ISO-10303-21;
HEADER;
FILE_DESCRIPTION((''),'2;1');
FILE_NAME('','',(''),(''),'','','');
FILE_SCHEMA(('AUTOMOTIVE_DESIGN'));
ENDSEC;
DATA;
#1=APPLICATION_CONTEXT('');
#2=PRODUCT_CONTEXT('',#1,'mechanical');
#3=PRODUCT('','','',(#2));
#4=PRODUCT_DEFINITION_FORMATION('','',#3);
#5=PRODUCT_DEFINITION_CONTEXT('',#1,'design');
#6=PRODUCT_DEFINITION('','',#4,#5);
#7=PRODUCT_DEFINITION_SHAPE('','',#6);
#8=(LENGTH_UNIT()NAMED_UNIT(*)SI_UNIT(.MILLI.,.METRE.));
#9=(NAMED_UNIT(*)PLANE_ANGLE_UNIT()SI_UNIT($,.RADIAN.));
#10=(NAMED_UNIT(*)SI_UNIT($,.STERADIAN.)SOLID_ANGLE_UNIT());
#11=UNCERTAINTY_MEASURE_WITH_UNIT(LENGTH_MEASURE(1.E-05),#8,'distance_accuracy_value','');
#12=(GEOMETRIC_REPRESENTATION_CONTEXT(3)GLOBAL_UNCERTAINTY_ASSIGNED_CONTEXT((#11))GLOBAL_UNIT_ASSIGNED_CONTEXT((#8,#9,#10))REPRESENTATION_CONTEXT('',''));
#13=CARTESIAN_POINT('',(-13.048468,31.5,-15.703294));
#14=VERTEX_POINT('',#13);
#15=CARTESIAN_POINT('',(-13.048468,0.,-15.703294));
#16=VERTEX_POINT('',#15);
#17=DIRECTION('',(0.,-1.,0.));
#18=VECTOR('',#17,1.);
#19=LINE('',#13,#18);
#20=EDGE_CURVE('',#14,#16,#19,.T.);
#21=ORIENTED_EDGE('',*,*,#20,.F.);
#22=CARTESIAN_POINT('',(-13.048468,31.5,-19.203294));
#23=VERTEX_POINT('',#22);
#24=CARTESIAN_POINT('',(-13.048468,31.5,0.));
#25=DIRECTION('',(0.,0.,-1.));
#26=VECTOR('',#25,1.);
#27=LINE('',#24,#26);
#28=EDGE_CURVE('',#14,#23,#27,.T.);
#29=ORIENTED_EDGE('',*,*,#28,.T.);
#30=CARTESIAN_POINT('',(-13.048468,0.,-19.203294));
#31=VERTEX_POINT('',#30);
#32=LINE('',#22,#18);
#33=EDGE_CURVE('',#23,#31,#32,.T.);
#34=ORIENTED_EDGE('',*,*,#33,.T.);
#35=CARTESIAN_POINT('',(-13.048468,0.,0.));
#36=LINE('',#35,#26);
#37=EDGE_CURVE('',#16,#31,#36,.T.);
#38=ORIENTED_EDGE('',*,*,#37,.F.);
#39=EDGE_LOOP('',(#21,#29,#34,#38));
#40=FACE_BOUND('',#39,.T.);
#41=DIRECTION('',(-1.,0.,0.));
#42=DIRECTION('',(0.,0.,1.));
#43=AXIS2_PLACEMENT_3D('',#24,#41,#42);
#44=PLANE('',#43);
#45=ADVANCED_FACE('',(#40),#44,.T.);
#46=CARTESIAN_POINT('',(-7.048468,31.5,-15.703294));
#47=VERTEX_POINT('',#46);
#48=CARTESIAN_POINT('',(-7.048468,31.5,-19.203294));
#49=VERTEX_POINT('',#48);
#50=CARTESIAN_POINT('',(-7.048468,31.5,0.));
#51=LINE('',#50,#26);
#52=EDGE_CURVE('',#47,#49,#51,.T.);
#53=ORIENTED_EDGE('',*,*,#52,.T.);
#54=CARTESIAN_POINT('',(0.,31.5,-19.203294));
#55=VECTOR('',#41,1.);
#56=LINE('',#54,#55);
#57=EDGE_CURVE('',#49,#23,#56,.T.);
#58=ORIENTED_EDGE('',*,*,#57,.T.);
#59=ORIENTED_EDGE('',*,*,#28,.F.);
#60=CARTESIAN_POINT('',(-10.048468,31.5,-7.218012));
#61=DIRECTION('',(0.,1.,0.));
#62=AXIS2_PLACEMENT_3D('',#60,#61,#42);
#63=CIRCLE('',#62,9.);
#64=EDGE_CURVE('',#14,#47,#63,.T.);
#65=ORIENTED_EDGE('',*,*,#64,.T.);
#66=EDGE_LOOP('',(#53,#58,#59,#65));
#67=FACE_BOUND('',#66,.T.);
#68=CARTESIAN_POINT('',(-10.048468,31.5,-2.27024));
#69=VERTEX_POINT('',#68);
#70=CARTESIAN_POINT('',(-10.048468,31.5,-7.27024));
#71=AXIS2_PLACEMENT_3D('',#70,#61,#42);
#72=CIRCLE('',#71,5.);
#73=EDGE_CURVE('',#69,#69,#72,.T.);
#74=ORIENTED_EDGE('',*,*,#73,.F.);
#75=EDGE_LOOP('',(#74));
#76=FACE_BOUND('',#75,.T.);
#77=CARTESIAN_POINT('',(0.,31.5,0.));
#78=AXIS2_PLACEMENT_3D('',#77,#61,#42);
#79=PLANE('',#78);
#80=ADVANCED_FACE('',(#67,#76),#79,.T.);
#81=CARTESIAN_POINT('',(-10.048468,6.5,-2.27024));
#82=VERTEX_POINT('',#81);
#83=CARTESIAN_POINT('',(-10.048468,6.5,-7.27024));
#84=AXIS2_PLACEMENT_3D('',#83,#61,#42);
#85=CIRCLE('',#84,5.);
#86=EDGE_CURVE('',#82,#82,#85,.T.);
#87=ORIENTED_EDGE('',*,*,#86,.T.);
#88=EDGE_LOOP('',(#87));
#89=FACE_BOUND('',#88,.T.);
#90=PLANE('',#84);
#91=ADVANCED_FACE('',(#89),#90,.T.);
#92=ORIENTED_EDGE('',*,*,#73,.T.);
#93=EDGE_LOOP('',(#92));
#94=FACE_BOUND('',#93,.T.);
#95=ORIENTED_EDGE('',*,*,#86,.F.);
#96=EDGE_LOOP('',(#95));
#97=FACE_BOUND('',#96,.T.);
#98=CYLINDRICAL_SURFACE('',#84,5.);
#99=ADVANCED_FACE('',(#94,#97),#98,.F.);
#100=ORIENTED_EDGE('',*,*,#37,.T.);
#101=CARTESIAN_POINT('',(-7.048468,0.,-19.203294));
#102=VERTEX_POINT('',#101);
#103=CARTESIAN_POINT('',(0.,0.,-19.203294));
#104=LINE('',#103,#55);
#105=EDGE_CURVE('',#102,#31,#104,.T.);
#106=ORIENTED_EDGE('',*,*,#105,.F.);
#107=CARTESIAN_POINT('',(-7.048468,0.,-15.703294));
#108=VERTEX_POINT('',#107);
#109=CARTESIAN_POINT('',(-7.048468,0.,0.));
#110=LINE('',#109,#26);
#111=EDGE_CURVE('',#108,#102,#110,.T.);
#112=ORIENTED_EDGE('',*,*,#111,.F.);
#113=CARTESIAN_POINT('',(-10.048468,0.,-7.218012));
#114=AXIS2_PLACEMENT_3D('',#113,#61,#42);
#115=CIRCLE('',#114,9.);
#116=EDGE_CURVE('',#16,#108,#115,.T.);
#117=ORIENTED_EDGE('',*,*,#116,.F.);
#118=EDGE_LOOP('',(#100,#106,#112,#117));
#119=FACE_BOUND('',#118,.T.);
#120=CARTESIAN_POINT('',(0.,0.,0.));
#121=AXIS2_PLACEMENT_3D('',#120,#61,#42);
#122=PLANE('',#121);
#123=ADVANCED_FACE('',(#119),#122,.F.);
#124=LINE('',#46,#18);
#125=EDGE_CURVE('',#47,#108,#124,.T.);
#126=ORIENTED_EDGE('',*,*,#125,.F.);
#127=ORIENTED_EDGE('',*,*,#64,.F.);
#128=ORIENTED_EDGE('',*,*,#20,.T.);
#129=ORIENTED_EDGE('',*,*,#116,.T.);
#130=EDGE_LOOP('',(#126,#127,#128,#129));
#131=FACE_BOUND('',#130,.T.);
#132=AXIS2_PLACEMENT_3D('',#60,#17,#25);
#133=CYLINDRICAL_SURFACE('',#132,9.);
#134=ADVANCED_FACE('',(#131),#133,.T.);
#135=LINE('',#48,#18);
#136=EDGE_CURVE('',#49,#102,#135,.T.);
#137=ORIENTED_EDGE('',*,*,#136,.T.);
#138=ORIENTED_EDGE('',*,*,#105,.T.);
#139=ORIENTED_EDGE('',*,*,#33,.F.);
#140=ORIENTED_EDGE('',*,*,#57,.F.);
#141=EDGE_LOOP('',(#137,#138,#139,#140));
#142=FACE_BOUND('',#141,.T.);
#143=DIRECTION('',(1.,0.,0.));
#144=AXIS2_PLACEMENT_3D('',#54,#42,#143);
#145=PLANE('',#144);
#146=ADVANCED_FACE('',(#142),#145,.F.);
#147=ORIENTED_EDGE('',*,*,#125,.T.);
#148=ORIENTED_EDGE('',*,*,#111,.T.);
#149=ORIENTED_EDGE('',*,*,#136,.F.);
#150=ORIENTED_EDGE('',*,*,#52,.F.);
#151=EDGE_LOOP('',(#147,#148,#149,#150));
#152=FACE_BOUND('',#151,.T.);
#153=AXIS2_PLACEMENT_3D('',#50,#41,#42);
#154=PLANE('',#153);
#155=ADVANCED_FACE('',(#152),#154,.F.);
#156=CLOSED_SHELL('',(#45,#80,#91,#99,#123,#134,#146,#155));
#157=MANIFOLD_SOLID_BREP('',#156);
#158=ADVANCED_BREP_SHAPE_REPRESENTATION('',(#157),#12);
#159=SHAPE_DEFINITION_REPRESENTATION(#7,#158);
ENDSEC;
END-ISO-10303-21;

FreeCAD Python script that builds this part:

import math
import FreeCAD as App
import Part
import Sketcher

V = App.Vector
Q = App.Units.Quantity

doc = App.newDocument("Part")
body = doc.addObject("PartDesign::Body", "Body")

sketch1 = body.newObject("Sketcher::SketchObject", "Sketch")
sketch1.AttachmentSupport = (doc.getObject("XZ_Plane"), [""])
sketch1.MapMode = "FlatFace"
sketch1.addGeometry(Part.ArcOfCircle(Part.Circle(V(-10.048468, -7.218012, 0), V(0, 0, 1), 9), math.radians(-70.528779), math.radians(0)), False)
sketch1.addGeometry(Part.LineSegment(V(-7.048468, -15.703294, 0), V(-7.048468, -19.203294, 0)), False)
sketch1.addGeometry(Part.LineSegment(V(-7.048468, -19.203294, 0), V(-13.048468, -19.203294, 0)), False)
sketch1.addGeometry(Part.LineSegment(V(-13.048468, -19.203294, 0), V(-13.048468, -15.703294, 0)), False)
sketch1.addGeometry(Part.ArcOfCircle(Part.Circle(V(-10.048468, -7.218012, 0), V(0, 0, 1), 9), math.radians(0), math.radians(250.528779)), False)
sketch1.addConstraint(Sketcher.Constraint("Coincident", 0, 1, 1, 1))
sketch1.addConstraint(Sketcher.Constraint("Coincident", 1, 2, 2, 1))
sketch1.addConstraint(Sketcher.Constraint("Coincident", 2, 2, 3, 1))
sketch1.addConstraint(Sketcher.Constraint("Coincident", 3, 2, 4, 2))
sketch1.addConstraint(Sketcher.Constraint("Tangent", 4, 1, 0, 2))
sketch1.addConstraint(Sketcher.Constraint("Vertical", 1))
sketch1.addConstraint(Sketcher.Constraint("Horizontal", 2))
sketch1.addConstraint(Sketcher.Constraint("Vertical", 3))
sketch1.addConstraint(Sketcher.Constraint("Equal", 0, 4))
sketch1.addConstraint(Sketcher.Constraint("Horizontal", 0, 1, 3, 2))
sketch1.addConstraint(Sketcher.Constraint("Horizontal", 0, 3, 4, 1))
sketch1.addConstraint(Sketcher.Constraint("Radius", 0, Q("9 mm")))
sketch1.addConstraint(Sketcher.Constraint("DistanceX", 2, 2, 2, 1, Q("6 mm")))
sketch1.addConstraint(Sketcher.Constraint("DistanceY", 1, 2, 1, 1, Q("3.5 mm")))
sketch1.addConstraint(Sketcher.Constraint("DistanceX", 0, 3, -1, 1, Q("10.048468 mm")))
sketch1.addConstraint(Sketcher.Constraint("DistanceY", 0, 3, -1, 1, Q("7.218012 mm")))
pad1 = body.newObject("PartDesign::Pad", "Pad")
pad1.Profile = sketch1
pad1.Length = 31.5
pad1.Reversed = True

sketch2 = body.newObject("Sketcher::SketchObject", "Sketch001")
sketch2.AttachmentSupport = (doc.getObject("XZ_Plane"), [""])
sketch2.MapMode = "FlatFace"
sketch2.AttachmentOffset = App.Placement(V(0, 0, -31.5), App.Rotation())
sketch2.addGeometry(Part.Circle(V(-10.048468, -7.27024, 0), V(0, 0, 1), 5), False)
sketch2.addConstraint(Sketcher.Constraint("Diameter", 0, Q("10 mm")))
sketch2.addConstraint(Sketcher.Constraint("DistanceY", 0, 3, -1, 1, Q("7.27024 mm")))
sketch2.addConstraint(Sketcher.Constraint("DistanceX", 0, 3, -1, 1, Q("10.048468 mm")))
pocket1 = body.newObject("PartDesign::Pocket", "Pocket")
pocket1.Profile = sketch2
pocket1.Length = 25
pocket1.Reversed = True

doc.recompute()
